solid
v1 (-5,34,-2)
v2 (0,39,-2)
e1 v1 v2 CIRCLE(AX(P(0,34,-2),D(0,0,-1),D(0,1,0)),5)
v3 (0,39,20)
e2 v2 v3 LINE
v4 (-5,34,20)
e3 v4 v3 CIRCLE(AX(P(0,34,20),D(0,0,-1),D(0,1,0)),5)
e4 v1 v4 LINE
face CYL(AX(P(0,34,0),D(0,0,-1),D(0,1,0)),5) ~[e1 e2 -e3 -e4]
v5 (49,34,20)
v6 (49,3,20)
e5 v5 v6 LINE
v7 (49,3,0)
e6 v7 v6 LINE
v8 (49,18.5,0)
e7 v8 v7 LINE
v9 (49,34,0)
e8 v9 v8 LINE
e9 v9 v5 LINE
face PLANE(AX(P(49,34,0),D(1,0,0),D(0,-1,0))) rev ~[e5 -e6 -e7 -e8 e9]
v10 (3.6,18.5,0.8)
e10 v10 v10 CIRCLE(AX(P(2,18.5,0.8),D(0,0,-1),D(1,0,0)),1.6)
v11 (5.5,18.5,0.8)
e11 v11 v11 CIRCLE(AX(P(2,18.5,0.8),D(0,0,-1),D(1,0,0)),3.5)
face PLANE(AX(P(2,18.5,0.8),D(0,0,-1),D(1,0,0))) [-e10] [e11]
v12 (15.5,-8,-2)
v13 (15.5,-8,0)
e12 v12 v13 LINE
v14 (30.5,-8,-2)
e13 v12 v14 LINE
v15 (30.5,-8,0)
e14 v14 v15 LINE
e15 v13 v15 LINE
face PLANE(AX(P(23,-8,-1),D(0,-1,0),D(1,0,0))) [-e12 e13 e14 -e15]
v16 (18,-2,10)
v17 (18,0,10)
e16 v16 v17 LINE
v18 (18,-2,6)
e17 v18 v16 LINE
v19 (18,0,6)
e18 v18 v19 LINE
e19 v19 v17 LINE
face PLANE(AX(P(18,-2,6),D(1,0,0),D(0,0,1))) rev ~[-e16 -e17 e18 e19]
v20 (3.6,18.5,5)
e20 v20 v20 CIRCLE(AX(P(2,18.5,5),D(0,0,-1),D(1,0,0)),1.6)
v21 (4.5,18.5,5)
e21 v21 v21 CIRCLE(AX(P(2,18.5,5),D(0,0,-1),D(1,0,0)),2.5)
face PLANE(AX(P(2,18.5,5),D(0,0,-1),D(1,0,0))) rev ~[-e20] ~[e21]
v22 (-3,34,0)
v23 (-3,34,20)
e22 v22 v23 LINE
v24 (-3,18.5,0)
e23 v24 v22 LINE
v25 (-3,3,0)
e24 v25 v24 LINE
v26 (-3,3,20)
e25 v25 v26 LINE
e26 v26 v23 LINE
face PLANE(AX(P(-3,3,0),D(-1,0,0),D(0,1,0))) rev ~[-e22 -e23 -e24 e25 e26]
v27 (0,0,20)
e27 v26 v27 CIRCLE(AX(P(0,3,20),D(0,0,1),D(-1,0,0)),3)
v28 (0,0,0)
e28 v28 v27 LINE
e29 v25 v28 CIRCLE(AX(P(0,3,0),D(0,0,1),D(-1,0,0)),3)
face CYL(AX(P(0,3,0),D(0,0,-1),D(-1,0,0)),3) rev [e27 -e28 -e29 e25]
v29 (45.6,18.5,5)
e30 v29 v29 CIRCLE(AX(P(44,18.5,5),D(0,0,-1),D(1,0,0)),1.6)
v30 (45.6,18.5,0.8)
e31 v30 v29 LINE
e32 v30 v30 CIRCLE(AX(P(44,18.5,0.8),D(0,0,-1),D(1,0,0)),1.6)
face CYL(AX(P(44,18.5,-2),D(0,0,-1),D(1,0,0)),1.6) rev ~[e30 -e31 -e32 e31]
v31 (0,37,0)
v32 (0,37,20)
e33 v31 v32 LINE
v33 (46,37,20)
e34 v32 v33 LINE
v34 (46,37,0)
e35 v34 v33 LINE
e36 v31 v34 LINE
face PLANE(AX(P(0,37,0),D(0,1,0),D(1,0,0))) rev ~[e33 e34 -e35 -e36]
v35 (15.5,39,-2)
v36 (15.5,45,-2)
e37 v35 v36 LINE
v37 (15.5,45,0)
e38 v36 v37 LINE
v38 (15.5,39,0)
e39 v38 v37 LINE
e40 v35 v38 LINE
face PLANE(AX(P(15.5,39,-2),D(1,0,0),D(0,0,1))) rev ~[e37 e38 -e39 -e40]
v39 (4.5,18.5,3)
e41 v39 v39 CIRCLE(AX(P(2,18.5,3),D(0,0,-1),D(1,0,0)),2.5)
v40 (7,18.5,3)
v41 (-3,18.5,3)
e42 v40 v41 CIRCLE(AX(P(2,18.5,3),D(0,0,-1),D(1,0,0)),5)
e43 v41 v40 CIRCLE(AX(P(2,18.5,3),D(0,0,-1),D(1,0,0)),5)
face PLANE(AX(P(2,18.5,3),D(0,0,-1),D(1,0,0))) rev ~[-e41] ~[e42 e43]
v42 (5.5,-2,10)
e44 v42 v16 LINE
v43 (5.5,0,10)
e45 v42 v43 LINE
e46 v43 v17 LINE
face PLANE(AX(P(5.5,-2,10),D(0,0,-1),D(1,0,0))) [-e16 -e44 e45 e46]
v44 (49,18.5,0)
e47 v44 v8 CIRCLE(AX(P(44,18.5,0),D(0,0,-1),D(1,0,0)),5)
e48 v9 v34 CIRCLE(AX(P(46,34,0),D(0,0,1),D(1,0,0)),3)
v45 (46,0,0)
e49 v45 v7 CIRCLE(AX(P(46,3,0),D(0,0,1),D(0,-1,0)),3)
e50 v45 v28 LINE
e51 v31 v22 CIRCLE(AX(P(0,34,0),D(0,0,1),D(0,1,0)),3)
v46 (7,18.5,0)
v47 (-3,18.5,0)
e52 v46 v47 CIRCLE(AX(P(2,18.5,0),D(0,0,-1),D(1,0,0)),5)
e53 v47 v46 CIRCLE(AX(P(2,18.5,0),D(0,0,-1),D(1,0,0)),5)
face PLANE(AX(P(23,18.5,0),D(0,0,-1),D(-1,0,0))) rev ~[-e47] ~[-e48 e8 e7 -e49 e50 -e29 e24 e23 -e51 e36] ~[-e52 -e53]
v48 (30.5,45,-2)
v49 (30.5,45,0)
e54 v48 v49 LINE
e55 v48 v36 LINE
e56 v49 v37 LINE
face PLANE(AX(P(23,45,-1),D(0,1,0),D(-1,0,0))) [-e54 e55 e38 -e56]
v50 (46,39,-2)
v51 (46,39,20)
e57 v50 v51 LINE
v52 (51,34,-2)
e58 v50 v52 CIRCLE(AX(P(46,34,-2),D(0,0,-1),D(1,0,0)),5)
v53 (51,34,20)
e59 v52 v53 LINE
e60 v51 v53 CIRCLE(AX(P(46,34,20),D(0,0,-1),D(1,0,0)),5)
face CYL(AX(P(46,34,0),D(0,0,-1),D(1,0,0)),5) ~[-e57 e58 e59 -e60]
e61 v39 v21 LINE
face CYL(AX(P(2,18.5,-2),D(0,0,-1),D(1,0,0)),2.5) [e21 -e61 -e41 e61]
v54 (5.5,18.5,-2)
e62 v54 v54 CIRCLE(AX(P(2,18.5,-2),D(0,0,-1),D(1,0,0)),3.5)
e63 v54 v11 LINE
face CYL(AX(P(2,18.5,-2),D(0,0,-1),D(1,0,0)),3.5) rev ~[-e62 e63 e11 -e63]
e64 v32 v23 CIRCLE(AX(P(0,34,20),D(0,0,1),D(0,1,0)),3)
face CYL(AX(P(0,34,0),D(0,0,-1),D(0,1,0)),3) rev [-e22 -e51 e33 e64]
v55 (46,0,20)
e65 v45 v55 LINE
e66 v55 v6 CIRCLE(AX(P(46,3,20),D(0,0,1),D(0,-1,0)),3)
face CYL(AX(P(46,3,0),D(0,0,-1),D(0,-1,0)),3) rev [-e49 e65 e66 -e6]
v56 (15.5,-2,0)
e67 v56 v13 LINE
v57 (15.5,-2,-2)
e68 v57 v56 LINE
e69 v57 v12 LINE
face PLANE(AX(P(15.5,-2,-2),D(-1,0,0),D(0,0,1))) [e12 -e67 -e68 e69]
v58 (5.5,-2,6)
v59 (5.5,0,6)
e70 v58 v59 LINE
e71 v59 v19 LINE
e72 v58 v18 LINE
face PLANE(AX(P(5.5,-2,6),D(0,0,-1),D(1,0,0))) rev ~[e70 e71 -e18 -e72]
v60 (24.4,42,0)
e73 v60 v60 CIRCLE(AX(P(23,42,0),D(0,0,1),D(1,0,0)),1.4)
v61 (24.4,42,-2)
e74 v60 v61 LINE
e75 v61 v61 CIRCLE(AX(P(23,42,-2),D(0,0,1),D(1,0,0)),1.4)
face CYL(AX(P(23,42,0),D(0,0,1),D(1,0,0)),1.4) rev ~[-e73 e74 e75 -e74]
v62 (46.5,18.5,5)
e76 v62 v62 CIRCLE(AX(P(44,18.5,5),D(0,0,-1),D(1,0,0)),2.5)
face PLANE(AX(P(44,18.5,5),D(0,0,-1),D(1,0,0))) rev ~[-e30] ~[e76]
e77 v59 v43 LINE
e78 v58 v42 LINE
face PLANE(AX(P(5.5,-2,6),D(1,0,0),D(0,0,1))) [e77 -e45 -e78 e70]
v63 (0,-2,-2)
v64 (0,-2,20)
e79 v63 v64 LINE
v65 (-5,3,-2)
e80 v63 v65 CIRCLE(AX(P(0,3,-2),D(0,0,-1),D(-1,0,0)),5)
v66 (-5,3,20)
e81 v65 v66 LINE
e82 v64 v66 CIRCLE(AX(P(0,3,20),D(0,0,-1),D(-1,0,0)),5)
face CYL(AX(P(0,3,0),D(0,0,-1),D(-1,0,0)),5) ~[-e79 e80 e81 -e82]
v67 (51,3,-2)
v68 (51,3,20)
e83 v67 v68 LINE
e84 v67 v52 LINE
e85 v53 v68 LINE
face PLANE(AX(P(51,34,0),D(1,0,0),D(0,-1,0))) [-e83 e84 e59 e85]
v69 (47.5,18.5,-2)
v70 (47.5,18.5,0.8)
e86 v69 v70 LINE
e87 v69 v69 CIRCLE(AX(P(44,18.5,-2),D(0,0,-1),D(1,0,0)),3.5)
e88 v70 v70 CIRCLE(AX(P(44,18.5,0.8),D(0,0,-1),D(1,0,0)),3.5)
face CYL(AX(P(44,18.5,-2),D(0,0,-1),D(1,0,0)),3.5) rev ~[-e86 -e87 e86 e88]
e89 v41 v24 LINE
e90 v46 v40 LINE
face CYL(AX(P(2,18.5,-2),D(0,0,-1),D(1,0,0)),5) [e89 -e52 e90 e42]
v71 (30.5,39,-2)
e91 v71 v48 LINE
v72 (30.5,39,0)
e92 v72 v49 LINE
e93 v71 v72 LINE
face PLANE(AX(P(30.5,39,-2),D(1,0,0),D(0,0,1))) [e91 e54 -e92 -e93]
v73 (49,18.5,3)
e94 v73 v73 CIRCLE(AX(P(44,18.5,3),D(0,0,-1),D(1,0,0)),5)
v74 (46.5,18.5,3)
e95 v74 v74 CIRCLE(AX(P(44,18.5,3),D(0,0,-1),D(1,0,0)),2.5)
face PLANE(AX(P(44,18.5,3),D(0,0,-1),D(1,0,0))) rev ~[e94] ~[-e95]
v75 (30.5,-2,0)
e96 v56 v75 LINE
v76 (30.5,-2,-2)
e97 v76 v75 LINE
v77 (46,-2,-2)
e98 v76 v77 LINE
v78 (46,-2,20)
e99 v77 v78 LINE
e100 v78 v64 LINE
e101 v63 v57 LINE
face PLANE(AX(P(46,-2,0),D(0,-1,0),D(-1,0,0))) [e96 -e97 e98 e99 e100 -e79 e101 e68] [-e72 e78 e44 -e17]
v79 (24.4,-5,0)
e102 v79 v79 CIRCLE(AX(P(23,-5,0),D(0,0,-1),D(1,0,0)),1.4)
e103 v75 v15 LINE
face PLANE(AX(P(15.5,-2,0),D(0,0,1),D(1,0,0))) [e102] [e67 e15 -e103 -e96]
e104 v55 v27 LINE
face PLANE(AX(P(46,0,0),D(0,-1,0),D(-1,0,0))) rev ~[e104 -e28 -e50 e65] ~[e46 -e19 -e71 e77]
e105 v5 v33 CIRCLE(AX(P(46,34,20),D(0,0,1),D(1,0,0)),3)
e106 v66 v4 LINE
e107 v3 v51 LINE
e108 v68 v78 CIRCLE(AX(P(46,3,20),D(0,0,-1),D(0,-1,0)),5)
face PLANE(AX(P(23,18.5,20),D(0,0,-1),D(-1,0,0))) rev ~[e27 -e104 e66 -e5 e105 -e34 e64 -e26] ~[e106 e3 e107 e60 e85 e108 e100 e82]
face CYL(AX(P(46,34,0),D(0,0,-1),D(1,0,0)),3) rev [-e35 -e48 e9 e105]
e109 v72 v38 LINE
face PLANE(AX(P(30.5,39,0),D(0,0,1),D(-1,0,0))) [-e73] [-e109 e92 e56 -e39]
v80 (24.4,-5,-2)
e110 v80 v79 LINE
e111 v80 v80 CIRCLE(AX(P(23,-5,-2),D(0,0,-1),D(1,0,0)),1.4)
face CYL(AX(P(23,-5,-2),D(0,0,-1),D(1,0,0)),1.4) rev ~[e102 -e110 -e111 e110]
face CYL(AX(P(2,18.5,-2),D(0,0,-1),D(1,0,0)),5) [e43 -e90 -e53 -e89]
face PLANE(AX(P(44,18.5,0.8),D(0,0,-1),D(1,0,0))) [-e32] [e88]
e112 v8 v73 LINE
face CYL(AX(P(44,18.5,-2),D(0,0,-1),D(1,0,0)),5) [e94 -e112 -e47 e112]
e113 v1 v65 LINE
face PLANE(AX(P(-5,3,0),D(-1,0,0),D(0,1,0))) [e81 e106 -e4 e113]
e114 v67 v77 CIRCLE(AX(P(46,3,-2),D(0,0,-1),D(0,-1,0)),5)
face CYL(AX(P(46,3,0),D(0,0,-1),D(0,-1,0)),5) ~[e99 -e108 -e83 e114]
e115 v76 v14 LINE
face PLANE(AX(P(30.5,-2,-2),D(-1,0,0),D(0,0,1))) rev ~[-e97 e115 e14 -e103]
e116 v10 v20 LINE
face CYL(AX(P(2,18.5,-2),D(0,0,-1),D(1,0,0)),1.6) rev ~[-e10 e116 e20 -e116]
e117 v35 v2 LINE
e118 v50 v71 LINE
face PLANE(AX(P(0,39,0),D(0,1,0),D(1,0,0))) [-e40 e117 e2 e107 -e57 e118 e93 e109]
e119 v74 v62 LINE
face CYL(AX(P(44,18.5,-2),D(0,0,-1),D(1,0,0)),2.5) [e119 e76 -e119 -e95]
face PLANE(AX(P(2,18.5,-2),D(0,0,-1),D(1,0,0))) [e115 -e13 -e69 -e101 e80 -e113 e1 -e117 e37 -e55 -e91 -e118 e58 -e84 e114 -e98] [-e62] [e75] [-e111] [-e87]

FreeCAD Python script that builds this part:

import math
import FreeCAD as App
import Part
import Sketcher
from FreeCAD import Vector


def faces_at(feature, points):
    """Names of the faces that lie closest to the given points."""
    faces = feature.Shape.Faces
    near = lambda p: min(range(len(faces)), key=lambda i: faces[i].distToShape(Part.Vertex(*p))[0])
    return sorted({f"Face{near(p) + 1}" for p in points})


def add_polygon(sketch, points):
    """Adds a closed chain of lines whose ends are joined by coincident constraints."""
    first, n = sketch.GeometryCount, len(points)
    for a, b in zip(points, points[1:] + points[:1]):
        sketch.addGeometry(Part.LineSegment(App.Vector(*a, 0), App.Vector(*b, 0)), False)
    for i in range(n):
        sketch.addConstraint(Sketcher.Constraint("Coincident", first + i, 2, first + (i + 1) % n, 1))

doc = App.newDocument("Part")
params = doc.addObject("Spreadsheet::Sheet", "Params")
for row, (alias, value) in enumerate([
    ("sketch1_radius", "3 mm"),
    ("sketch1_width", "46 mm"),
    ("sketch1_height", "31 mm"),
    ("pad1_length", "20 mm"),
    ("thickness_wall", "2 mm"),
    ("sketch2_width", "15 mm"),
    ("sketch2_height", "2 mm"),
    ("pad2_length", "6 mm"),
    ("sketch3_diameter", "2.8 mm"),
    ("sketch4_width", "15 mm"),
    ("sketch4_height", "2 mm"),
    ("pad3_length", "6 mm"),
    ("sketch5_diameter", "2.8 mm"),
    ("sketch6_diameter", "5 mm"),
    ("pad4_length", "7 mm"),
    ("sketch7_diameter", "10 mm"),
    ("pad5_length", "5 mm"),
    ("sketch8_diameter", "3.2 mm"),
    ("sketch9_diameter", "7 mm"),
    ("pocket4_length", "2.8 mm"),
    ("sketch10_height", "4 mm"),
    ("sketch10_width", "12.5 mm"),
    ("pocket5_length", "2 mm"),
], start=1):
    params.set(f"A{row}", alias)
    params.set(f"B{row}", "=" + value)
    params.setAlias(f"B{row}", alias)

body = doc.addObject("PartDesign::Body", "Body")

# Sketch on XY plane
sketch1 = body.newObject("Sketcher::SketchObject", "Sketch")
sketch1.AttachmentSupport = (doc.getObject("XY_Plane"), [""])
sketch1.MapMode = "FlatFace"
sketch1.addGeometry(Part.LineSegment(Vector(46, 37, 0), Vector(0, 37, 0)), False)
sketch1.addGeometry(Part.ArcOfCircle(Part.Circle(Vector(0, 34, 0), Vector(0, 0, 1), 3), math.radians(90), math.radians(180)), False)
sketch1.addGeometry(Part.LineSegment(Vector(-3, 34, 0), Vector(-3, 3, 0)), False)
sketch1.addGeometry(Part.ArcOfCircle(Part.Circle(Vector(0, 3, 0), Vector(0, 0, 1), 3), math.radians(180), math.radians(270)), False)
sketch1.addGeometry(Part.LineSegment(Vector(0, 0, 0), Vector(46, 0, 0)), False)
sketch1.addGeometry(Part.ArcOfCircle(Part.Circle(Vector(46, 3, 0), Vector(0, 0, 1), 3), math.radians(-90), math.radians(0)), False)
sketch1.addGeometry(Part.LineSegment(Vector(49, 3, 0), Vector(49, 34, 0)), False)
sketch1.addGeometry(Part.ArcOfCircle(Part.Circle(Vector(46, 34, 0), Vector(0, 0, 1), 3), math.radians(0), math.radians(90)), False)
sketch1.addConstraint(Sketcher.Constraint("Tangent", 0, 2, 1, 1))
sketch1.addConstraint(Sketcher.Constraint("Tangent", 1, 2, 2, 1))
sketch1.addConstraint(Sketcher.Constraint("Tangent", 2, 2, 3, 1))
sketch1.addConstraint(Sketcher.Constraint("Tangent", 3, 2, 4, 1))
sketch1.addConstraint(Sketcher.Constraint("Tangent", 4, 2, 5, 1))
sketch1.addConstraint(Sketcher.Constraint("Tangent", 5, 2, 6, 1))
sketch1.addConstraint(Sketcher.Constraint("Tangent", 6, 2, 7, 1))
sketch1.addConstraint(Sketcher.Constraint("Tangent", 7, 2, 0, 1))
sketch1.addConstraint(Sketcher.Constraint("Horizontal", 0))
sketch1.addConstraint(Sketcher.Constraint("Vertical", 2))
sketch1.addConstraint(Sketcher.Constraint("Horizontal", 4))
sketch1.addConstraint(Sketcher.Constraint("Vertical", 6))
sketch1.addConstraint(Sketcher.Constraint("Coincident", 3, 2, -1, 1))
sketch1.addConstraint(Sketcher.Constraint("Equal", 1, 3))
sketch1.addConstraint(Sketcher.Constraint("Equal", 3, 5))
sketch1.addConstraint(Sketcher.Constraint("Equal", 5, 7))
sketch1.addConstraint(Sketcher.Constraint("Radius", 1, 3.0))
sketch1.addConstraint(Sketcher.Constraint("DistanceX", 0, 2, 0, 1, 46.0))
sketch1.addConstraint(Sketcher.Constraint("DistanceY", 2, 2, 2, 1, 31.0))
sketch1.setExpression("Constraints[16]", "Params.sketch1_radius")
sketch1.setExpression("Constraints[17]", "Params.sketch1_width")
sketch1.setExpression("Constraints[18]", "Params.sketch1_height")
pad1 = body.newObject("PartDesign::Pad", "Pad")
pad1.Profile = sketch1
pad1.setExpression("Length", "Params.pad1_length")
doc.recompute()

thickness = body.newObject("PartDesign::Thickness", "Thickness")
thickness.Base = (pad1, faces_at(pad1, [(23, 18.5, 20)]))
thickness.setExpression("Value", "Params.thickness_wall")
thickness.Reversed = False
thickness.Join = "Intersection"

# Sketch on XZ plane
sketch2 = body.newObject("Sketcher::SketchObject", "Sketch001")
sketch2.AttachmentSupport = (doc.getObject("XZ_Plane"), [""])
sketch2.MapMode = "FlatFace"
sketch2.AttachmentOffset = App.Placement(Vector(0, 0, -39), App.Rotation())
add_polygon(sketch2, [(30.5, 0), (30.5, -2), (15.5, -2), (15.5, 0)])  # lines 0-3
sketch2.addConstraint(Sketcher.Constraint("Vertical", 0))
sketch2.addConstraint(Sketcher.Constraint("Horizontal", 1))
sketch2.addConstraint(Sketcher.Constraint("Vertical", 2))
sketch2.addConstraint(Sketcher.Constraint("Horizontal", 3))
sketch2.addConstraint(Sketcher.Constraint("PointOnObject", 2, 2, -1))
sketch2.addConstraint(Sketcher.Constraint("DistanceX", 1, 2, 1, 1, 15.0))
sketch2.addConstraint(Sketcher.Constraint("DistanceY", 0, 2, 0, 1, 2.0))
sketch2.addConstraint(Sketcher.Constraint("DistanceX", -1, 1, 0, 2, 30.5))
sketch2.setExpression("Constraints[9]", "Params.sketch2_width")
sketch2.setExpression("Constraints[10]", "Params.sketch2_height")
pad2 = body.newObject("PartDesign::Pad", "Pad001")
pad2.Profile = sketch2
pad2.setExpression("Length", "Params.pad2_length")
pad2.Reversed = True

# Sketch on XY plane
sketch3 = body.newObject("Sketcher::SketchObject", "Sketch002")
sketch3.AttachmentSupport = (doc.getObject("XY_Plane"), [""])
sketch3.MapMode = "FlatFace"
sketch3.addGeometry(Part.Circle(Vector(23, 42, 0), Vector(0, 0, 1), 1.4), False)
sketch3.addConstraint(Sketcher.Constraint("Diameter", 0, 2.8))
sketch3.addConstraint(Sketcher.Constraint("DistanceX", -1, 1, 0, 3, 23.0))
sketch3.addConstraint(Sketcher.Constraint("DistanceY", -1, 1, 0, 3, 42.0))
sketch3.setExpression("Constraints[0]", "Params.sketch3_diameter")
pocket1 = body.newObject("PartDesign::Pocket", "Pocket")
pocket1.Profile = sketch3
pocket1.Type = "ThroughAll"

# Sketch on XZ plane
sketch4 = body.newObject("Sketcher::SketchObject", "Sketch003")
sketch4.AttachmentSupport = (doc.getObject("XZ_Plane"), [""])
sketch4.MapMode = "FlatFace"
sketch4.AttachmentOffset = App.Placement(Vector(0, 0, 2), App.Rotation())
add_polygon(sketch4, [(15.5, 0), (15.5, -2), (30.5, -2), (30.5, 0)])  # lines 0-3
sketch4.addConstraint(Sketcher.Constraint("Vertical", 0))
sketch4.addConstraint(Sketcher.Constraint("Horizontal", 1))
sketch4.addConstraint(Sketcher.Constraint("Vertical", 2))
sketch4.addConstraint(Sketcher.Constraint("Horizontal", 3))
sketch4.addConstraint(Sketcher.Constraint("PointOnObject", 2, 2, -1))
sketch4.addConstraint(Sketcher.Constraint("DistanceX", 1, 1, 1, 2, 15.0))
sketch4.addConstraint(Sketcher.Constraint("DistanceY", 0, 2, 0, 1, 2.0))
sketch4.addConstraint(Sketcher.Constraint("DistanceX", -1, 1, 0, 2, 15.5))
sketch4.setExpression("Constraints[9]", "Params.sketch4_width")
sketch4.setExpression("Constraints[10]", "Params.sketch4_height")
pad3 = body.newObject("PartDesign::Pad", "Pad002")
pad3.Profile = sketch4
pad3.setExpression("Length", "Params.pad3_length")

# Sketch on XY plane
sketch5 = body.newObject("Sketcher::SketchObject", "Sketch004")
sketch5.AttachmentSupport = (doc.getObject("XY_Plane"), [""])
sketch5.MapMode = "FlatFace"
sketch5.AttachmentOffset = App.Placement(Vector(0, 0, -2), App.Rotation())
sketch5.addGeometry(Part.Circle(Vector(23, -5, 0), Vector(0, 0, 1), 1.4), False)
sketch5.addConstraint(Sketcher.Constraint("Diameter", 0, 2.8))
sketch5.addConstraint(Sketcher.Constraint("DistanceX", -1, 1, 0, 3, 23.0))
sketch5.addConstraint(Sketcher.Constraint("DistanceY", 0, 3, -1, 1, 5.0))
sketch5.setExpression("Constraints[0]", "Params.sketch5_diameter")
pocket2 = body.newObject("PartDesign::Pocket", "Pocket001")
pocket2.Profile = sketch5
pocket2.Type = "ThroughAll"
pocket2.Reversed = True

# Sketch on XY plane
sketch6 = body.newObject("Sketcher::SketchObject", "Sketch005")
sketch6.AttachmentSupport = (doc.getObject("XY_Plane"), [""])
sketch6.MapMode = "FlatFace"
sketch6.AttachmentOffset = App.Placement(Vector(0, 0, -2), App.Rotation())
sketch6.addGeometry(Part.Circle(Vector(2, 18.5, 0), Vector(0, 0, 1), 2.5), False)
sketch6.addGeometry(Part.Circle(Vector(44, 18.5, 0), Vector(0, 0, 1), 2.5), False)
sketch6.addConstraint(Sketcher.Constraint("Equal", 0, 1))
sketch6.addConstraint(Sketcher.Constraint("Horizontal", 0, 3, 1, 3))
sketch6.addConstraint(Sketcher.Constraint("Diameter", 0, 5.0))
sketch6.addConstraint(Sketcher.Constraint("DistanceX", -1, 1, 0, 3, 2.0))
sketch6.addConstraint(Sketcher.Constraint("DistanceX", -1, 1, 1, 3, 44.0))
sketch6.addConstraint(Sketcher.Constraint("DistanceY", -1, 1, 0, 3, 18.5))
sketch6.setExpression("Constraints[2]", "Params.sketch6_diameter")
pad4 = body.newObject("PartDesign::Pad", "Pad003")
pad4.Profile = sketch6
pad4.setExpression("Length", "Params.pad4_length")

# Sketch on XY plane
sketch7 = body.newObject("Sketcher::SketchObject", "Sketch006")
sketch7.AttachmentSupport = (doc.getObject("XY_Plane"), [""])
sketch7.MapMode = "FlatFace"
sketch7.AttachmentOffset = App.Placement(Vector(0, 0, -2), App.Rotation())
sketch7.addGeometry(Part.Circle(Vector(2, 18, 0), Vector(0, 0, 1), 5), False)
sketch7.addGeometry(Part.Circle(Vector(44, 18, 0), Vector(0, 0, 1), 5), False)
sketch7.addConstraint(Sketcher.Constraint("Equal", 0, 1))
sketch7.addConstraint(Sketcher.Constraint("Horizontal", 0, 3, 1, 3))
sketch7.addConstraint(Sketcher.Constraint("Diameter", 0, 10.0))
sketch7.addConstraint(Sketcher.Constraint("DistanceX", -1, 1, 0, 3, 2.0))
sketch7.addConstraint(Sketcher.Constraint("DistanceX", -1, 1, 1, 3, 44.0))
sketch7.addConstraint(Sketcher.Constraint("DistanceY", -1, 1, 0, 3, 18.5))
sketch7.setExpression("Constraints[2]", "Params.sketch7_diameter")
pad5 = body.newObject("PartDesign::Pad", "Pad004")
pad5.Profile = sketch7
pad5.setExpression("Length", "Params.pad5_length")

# Sketch on XY plane
sketch8 = body.newObject("Sketcher::SketchObject", "Sketch007")
sketch8.AttachmentSupport = (doc.getObject("XY_Plane"), [""])
sketch8.MapMode = "FlatFace"
sketch8.AttachmentOffset = App.Placement(Vector(0, 0, -2), App.Rotation())
sketch8.addGeometry(Part.Circle(Vector(2, 18.5, 0), Vector(0, 0, 1), 1.6), False)
sketch8.addGeometry(Part.Circle(Vector(44, 18.5, 0), Vector(0, 0, 1), 1.6), False)
sketch8.addConstraint(Sketcher.Constraint("Equal", 0, 1))
sketch8.addConstraint(Sketcher.Constraint("Horizontal", 0, 3, 1, 3))
sketch8.addConstraint(Sketcher.Constraint("Diameter", 0, 3.2))
sketch8.addConstraint(Sketcher.Constraint("DistanceX", -1, 1, 0, 3, 2.0))
sketch8.addConstraint(Sketcher.Constraint("DistanceX", -1, 1, 1, 3, 44.0))
sketch8.addConstraint(Sketcher.Constraint("DistanceY", -1, 1, 0, 3, 18.5))
sketch8.setExpression("Constraints[2]", "Params.sketch8_diameter")
pocket3 = body.newObject("PartDesign::Pocket", "Pocket002")
pocket3.Profile = sketch8
pocket3.Type = "ThroughAll"
pocket3.Reversed = True

# Sketch on XY plane
sketch9 = body.newObject("Sketcher::SketchObject", "Sketch008")
sketch9.AttachmentSupport = (doc.getObject("XY_Plane"), [""])
sketch9.MapMode = "FlatFace"
sketch9.AttachmentOffset = App.Placement(Vector(0, 0, -2), App.Rotation())
sketch9.addGeometry(Part.Circle(Vector(2, 18.5, 0), Vector(0, 0, 1), 3.5), False)
sketch9.addGeometry(Part.Circle(Vector(44, 18.5, 0), Vector(0, 0, 1), 3.5), False)
sketch9.addConstraint(Sketcher.Constraint("Equal", 0, 1))
sketch9.addConstraint(Sketcher.Constraint("Horizontal", 0, 3, 1, 3))
sketch9.addConstraint(Sketcher.Constraint("Diameter", 0, 7.0))
sketch9.addConstraint(Sketcher.Constraint("DistanceX", -1, 1, 0, 3, 2.0))
sketch9.addConstraint(Sketcher.Constraint("DistanceX", -1, 1, 1, 3, 44.0))
sketch9.addConstraint(Sketcher.Constraint("DistanceY", -1, 1, 0, 3, 18.5))
sketch9.setExpression("Constraints[2]", "Params.sketch9_diameter")
pocket4 = body.newObject("PartDesign::Pocket", "Pocket003")
pocket4.Profile = sketch9
pocket4.setExpression("Length", "Params.pocket4_length")
pocket4.Reversed = True

# Sketch on XZ plane
sketch10 = body.newObject("Sketcher::SketchObject", "Sketch009")
sketch10.AttachmentSupport = (doc.getObject("XZ_Plane"), [""])
sketch10.MapMode = "FlatFace"
sketch10.AttachmentOffset = App.Placement(Vector(0, 0, 2), App.Rotation())
add_polygon(sketch10, [(5.5, 10), (5.5, 6), (18, 6), (18, 10)])  # lines 0-3
sketch10.addConstraint(Sketcher.Constraint("Vertical", 0))
sketch10.addConstraint(Sketcher.Constraint("Horizontal", 1))
sketch10.addConstraint(Sketcher.Constraint("Vertical", 2))
sketch10.addConstraint(Sketcher.Constraint("Horizontal", 3))
sketch10.addConstraint(Sketcher.Constraint("DistanceY", 0, 2, 0, 1, 4.0))
sketch10.addConstraint(Sketcher.Constraint("DistanceX", 1, 1, 1, 2, 12.5))
sketch10.addConstraint(Sketcher.Constraint("DistanceY", -1, 1, 0, 2, 6.0))
sketch10.addConstraint(Sketcher.Constraint("DistanceX", -1, 1, 1, 2, 18.0))
sketch10.setExpression("Constraints[8]", "Params.sketch10_height")
sketch10.setExpression("Constraints[9]", "Params.sketch10_width")
pocket5 = body.newObject("PartDesign::Pocket", "Pocket004")
pocket5.Profile = sketch10
pocket5.setExpression("Length", "Params.pocket5_length")

doc.recompute()
